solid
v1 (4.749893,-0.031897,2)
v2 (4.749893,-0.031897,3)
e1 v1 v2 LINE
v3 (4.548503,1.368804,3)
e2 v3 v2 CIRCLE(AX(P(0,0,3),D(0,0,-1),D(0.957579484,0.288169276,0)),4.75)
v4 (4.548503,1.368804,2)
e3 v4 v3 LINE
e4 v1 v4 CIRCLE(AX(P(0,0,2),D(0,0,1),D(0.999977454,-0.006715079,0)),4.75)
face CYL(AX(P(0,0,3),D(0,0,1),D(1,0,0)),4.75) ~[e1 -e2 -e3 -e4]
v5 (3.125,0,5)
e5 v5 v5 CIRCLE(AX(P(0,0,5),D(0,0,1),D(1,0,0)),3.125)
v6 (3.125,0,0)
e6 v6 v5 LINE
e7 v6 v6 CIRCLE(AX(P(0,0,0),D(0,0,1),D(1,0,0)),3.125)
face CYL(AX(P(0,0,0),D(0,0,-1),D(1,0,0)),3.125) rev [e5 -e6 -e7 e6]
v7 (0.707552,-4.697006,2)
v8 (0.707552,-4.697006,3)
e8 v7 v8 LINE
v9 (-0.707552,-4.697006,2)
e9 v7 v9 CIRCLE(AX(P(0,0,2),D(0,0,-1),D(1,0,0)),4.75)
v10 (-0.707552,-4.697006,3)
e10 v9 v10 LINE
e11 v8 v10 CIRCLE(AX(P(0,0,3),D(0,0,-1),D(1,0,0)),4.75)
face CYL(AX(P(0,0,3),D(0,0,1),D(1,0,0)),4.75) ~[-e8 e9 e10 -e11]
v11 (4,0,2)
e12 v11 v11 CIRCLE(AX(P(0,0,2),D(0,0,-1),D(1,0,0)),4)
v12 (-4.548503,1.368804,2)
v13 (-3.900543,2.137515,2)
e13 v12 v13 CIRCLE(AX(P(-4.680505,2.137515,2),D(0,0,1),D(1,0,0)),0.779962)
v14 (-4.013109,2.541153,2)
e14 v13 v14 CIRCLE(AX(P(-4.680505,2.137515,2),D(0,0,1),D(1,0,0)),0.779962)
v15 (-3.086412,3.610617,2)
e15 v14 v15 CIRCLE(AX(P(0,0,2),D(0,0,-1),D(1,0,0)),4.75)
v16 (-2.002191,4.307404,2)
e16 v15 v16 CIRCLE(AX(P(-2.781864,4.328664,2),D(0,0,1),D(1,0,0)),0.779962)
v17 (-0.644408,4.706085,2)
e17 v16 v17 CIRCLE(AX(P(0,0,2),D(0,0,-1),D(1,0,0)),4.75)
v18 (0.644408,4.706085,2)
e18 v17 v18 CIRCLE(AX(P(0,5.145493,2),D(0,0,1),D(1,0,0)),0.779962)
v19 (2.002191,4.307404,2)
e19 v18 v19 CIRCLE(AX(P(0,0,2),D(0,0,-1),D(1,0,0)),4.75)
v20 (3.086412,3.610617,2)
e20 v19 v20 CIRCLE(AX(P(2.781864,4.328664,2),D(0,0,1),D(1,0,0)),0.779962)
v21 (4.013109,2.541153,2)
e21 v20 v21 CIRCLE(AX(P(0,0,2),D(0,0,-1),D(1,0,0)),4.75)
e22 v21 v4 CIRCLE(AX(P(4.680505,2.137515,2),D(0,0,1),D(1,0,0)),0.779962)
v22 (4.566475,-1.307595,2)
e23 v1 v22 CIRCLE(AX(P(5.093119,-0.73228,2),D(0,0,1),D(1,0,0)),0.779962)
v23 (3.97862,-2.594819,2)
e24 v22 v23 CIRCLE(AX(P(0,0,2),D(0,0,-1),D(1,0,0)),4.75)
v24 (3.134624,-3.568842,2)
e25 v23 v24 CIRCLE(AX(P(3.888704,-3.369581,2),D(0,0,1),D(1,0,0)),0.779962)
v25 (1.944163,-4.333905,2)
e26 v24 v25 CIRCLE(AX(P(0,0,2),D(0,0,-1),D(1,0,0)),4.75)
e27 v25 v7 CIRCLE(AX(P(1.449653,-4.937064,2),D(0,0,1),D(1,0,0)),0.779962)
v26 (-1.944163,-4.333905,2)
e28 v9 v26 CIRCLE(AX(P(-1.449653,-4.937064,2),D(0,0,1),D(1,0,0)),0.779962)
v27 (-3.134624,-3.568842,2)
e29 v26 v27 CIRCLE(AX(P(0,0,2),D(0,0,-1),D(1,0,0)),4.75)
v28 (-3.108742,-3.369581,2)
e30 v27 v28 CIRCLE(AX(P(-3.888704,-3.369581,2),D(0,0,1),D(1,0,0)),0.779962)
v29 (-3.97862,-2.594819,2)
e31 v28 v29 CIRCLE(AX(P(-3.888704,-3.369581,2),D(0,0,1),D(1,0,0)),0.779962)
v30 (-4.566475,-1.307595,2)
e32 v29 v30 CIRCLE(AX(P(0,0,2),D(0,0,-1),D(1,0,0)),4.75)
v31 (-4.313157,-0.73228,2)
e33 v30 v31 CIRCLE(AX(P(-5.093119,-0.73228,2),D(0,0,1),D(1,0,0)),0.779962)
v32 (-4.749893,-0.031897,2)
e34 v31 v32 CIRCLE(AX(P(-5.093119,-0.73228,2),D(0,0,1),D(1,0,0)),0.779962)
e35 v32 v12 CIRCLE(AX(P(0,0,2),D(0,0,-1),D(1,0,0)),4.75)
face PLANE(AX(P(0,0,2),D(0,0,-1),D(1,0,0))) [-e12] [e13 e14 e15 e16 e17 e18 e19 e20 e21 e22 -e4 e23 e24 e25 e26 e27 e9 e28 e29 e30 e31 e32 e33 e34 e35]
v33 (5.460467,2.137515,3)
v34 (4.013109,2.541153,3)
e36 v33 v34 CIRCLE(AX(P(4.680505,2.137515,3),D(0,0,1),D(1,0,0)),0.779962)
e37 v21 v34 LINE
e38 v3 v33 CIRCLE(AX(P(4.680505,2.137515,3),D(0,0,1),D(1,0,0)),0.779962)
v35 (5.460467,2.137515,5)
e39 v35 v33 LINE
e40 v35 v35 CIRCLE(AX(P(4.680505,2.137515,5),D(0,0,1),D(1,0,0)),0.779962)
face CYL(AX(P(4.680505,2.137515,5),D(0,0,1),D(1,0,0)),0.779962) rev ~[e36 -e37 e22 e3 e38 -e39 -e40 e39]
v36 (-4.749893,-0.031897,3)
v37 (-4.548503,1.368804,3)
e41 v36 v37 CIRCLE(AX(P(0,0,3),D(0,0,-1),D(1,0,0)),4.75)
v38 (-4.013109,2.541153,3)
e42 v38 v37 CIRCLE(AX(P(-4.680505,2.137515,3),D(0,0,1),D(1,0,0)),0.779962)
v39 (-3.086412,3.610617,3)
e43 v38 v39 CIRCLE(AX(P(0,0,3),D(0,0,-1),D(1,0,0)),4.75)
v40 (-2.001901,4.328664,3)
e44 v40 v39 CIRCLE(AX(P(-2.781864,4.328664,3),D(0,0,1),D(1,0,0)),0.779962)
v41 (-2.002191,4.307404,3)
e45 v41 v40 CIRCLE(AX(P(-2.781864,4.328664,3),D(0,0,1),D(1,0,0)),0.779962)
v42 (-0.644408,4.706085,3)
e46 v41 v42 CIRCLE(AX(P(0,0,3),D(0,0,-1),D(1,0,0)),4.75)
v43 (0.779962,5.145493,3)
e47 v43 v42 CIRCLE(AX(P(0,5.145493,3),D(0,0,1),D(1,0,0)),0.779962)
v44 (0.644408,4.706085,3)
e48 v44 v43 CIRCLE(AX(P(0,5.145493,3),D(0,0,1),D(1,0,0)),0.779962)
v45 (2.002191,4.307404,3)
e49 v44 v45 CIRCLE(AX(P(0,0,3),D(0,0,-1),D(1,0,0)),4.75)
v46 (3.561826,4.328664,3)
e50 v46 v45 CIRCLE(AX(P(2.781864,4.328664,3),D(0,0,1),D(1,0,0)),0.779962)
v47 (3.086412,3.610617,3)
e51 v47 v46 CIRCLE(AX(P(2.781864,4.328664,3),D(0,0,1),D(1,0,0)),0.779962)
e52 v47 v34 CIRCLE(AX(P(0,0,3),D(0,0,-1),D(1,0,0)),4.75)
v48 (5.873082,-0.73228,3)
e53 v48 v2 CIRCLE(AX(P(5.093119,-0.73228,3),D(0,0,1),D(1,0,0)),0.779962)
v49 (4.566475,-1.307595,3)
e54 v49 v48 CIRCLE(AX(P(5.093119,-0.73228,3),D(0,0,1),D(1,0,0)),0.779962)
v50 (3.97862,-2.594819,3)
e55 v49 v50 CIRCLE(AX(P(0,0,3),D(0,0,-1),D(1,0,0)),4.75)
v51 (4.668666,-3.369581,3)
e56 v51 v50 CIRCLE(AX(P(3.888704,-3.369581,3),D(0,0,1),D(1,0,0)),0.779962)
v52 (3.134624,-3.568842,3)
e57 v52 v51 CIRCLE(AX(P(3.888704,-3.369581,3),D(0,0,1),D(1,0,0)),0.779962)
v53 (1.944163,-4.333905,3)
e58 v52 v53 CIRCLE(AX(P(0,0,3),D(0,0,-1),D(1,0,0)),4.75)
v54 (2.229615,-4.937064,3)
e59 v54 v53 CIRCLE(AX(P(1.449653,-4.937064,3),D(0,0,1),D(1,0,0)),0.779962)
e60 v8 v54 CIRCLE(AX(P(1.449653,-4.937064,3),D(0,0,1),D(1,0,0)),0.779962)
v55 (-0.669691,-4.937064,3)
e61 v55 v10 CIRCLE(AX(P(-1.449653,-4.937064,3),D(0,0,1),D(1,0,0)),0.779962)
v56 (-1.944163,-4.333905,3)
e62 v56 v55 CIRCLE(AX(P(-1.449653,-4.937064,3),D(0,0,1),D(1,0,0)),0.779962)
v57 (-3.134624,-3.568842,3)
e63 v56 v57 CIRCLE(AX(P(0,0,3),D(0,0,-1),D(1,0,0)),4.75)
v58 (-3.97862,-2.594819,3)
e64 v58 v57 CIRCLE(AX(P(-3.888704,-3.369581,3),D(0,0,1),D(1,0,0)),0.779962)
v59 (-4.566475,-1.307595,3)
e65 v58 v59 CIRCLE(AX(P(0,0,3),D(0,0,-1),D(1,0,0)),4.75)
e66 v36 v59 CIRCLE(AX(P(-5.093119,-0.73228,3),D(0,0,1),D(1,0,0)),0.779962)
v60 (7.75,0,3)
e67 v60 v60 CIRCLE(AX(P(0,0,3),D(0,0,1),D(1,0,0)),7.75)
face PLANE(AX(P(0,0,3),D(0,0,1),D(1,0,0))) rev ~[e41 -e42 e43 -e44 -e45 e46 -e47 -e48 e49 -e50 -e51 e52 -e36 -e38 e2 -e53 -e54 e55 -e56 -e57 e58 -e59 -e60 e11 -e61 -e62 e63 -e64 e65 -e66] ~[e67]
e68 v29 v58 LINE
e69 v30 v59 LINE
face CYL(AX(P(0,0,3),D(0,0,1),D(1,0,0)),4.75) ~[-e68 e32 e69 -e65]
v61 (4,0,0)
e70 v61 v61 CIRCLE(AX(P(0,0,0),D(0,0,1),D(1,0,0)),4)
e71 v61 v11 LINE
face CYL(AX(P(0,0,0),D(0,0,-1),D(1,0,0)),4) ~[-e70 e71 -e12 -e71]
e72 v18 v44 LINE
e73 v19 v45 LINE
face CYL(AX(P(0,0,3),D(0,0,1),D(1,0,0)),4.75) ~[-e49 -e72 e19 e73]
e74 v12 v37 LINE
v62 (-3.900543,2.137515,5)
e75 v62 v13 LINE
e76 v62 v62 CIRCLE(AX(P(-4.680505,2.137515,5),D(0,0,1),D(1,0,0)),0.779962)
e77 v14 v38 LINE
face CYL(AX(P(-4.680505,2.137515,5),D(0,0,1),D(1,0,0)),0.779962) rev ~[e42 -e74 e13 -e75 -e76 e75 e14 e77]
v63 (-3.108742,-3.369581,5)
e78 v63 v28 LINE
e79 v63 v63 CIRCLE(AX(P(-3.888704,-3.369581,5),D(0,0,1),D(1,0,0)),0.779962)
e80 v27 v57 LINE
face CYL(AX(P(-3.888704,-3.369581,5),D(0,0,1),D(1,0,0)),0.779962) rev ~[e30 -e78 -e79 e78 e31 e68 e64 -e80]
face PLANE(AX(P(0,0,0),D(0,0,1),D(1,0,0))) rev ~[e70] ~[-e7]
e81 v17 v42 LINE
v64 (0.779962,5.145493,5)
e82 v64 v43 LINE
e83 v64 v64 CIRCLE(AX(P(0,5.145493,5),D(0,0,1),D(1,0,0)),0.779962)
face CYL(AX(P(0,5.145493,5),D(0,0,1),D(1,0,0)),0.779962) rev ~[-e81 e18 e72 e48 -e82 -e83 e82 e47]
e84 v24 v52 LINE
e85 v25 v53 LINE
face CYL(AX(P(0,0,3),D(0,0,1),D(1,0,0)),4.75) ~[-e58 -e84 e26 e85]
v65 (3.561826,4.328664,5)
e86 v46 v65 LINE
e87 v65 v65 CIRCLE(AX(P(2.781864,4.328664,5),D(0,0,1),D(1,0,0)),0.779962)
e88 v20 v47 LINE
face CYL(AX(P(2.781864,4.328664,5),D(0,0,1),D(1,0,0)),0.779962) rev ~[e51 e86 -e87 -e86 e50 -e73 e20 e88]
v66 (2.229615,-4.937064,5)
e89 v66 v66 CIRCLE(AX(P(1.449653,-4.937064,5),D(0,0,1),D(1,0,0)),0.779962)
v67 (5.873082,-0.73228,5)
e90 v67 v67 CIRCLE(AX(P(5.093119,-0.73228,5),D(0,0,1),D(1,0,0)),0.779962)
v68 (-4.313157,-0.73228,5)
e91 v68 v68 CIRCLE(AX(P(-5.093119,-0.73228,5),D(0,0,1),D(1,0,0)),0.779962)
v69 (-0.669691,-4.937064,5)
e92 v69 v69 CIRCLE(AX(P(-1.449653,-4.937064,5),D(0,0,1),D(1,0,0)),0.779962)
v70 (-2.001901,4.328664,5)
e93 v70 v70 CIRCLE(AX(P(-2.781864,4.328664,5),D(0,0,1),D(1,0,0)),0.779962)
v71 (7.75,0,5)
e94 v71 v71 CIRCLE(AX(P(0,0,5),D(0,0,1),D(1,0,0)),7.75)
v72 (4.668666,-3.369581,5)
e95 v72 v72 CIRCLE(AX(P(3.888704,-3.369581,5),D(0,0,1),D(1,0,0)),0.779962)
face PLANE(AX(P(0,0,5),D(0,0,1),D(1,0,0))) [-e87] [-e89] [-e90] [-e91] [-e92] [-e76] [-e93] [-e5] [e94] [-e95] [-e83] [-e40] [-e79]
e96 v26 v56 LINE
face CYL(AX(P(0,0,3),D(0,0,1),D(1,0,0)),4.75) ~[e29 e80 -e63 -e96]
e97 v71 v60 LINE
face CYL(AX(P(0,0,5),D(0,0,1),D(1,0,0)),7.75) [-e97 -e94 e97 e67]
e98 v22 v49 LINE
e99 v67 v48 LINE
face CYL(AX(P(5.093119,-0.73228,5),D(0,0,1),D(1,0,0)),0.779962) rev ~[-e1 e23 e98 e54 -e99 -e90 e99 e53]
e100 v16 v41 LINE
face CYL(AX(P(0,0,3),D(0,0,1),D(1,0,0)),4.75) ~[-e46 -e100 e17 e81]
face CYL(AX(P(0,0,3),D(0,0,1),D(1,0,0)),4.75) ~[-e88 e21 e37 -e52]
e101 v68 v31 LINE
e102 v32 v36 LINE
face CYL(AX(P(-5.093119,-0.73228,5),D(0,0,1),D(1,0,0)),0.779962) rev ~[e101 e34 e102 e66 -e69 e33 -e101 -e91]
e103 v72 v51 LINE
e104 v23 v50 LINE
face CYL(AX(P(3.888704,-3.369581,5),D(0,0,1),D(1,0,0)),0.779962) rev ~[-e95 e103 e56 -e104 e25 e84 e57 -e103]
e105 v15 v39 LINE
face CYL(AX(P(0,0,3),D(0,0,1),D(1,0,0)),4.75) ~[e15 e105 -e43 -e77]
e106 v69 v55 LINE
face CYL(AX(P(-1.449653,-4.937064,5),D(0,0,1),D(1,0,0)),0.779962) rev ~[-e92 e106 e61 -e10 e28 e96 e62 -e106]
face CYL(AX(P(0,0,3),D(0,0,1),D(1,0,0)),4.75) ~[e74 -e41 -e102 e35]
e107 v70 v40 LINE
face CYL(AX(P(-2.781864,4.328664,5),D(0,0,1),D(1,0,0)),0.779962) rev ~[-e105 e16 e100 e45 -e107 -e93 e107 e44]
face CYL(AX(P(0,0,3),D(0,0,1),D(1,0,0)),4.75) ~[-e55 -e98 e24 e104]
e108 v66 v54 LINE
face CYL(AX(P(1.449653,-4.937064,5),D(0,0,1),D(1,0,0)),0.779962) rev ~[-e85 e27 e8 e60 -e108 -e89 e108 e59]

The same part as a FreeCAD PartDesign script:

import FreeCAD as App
import Part
import Sketcher
from FreeCAD import Vector

doc = App.newDocument("Part")
params = doc.addObject("Spreadsheet::Sheet", "Params")
for row, (alias, value) in enumerate([
    ("sketch1_diameter", "8 mm"),
    ("sketch1_diameter2", "6.25 mm"),
    ("pad1_length", "5 mm"),
    ("sketch2_diameter", "8 mm"),
    ("sketch2_diameter2", "15.5 mm"),
    ("pad2_length", "2 mm"),
    ("sketch3_diameter", "8 mm"),
    ("sketch3_diameter2", "9.5 mm"),
    ("pad3_length", "1 mm"),
    ("pocket1_length", "25.4 mm"),
], start=1):
    params.set(f"A{row}", alias)
    params.set(f"B{row}", "=" + value)
    params.setAlias(f"B{row}", alias)

body = doc.addObject("PartDesign::Body", "Body")

# Sketch on XY plane
sketch1 = body.newObject("Sketcher::SketchObject", "Sketch")
sketch1.AttachmentSupport = (doc.getObject("XY_Plane"), [""])
sketch1.MapMode = "FlatFace"
sketch1.addGeometry(Part.Circle(Vector(0, 0, 0), Vector(0, 0, 1), 4), False)
sketch1.addGeometry(Part.Circle(Vector(0, 0, 0), Vector(0, 0, 1), 3.1), False)
sketch1.addConstraint(Sketcher.Constraint("Coincident", 0, 3, -1, 1))
sketch1.addConstraint(Sketcher.Constraint("Coincident", 1, 3, -1, 1))
sketch1.addConstraint(Sketcher.Constraint("Diameter", 0, 8.0))
sketch1.addConstraint(Sketcher.Constraint("Diameter", 1, 6.25))
sketch1.setExpression("Constraints[2]", "Params.sketch1_diameter")
sketch1.setExpression("Constraints[3]", "Params.sketch1_diameter2")
pad1 = body.newObject("PartDesign::Pad", "Pad")
pad1.Profile = sketch1
pad1.setExpression("Length", "Params.pad1_length")

# Sketch on XY plane
sketch2 = body.newObject("Sketcher::SketchObject", "Sketch001")
sketch2.AttachmentSupport = (doc.getObject("XY_Plane"), [""])
sketch2.MapMode = "FlatFace"
sketch2.AttachmentOffset = App.Placement(Vector(0, 0, 5), App.Rotation())
sketch2.addGeometry(Part.Circle(Vector(0, 0, 0), Vector(0, 0, 1), 7.8), False)
sketch2.addGeometry(Part.Circle(Vector(0, 0, 0), Vector(0, 0, 1), 4), False)
sketch2.addConstraint(Sketcher.Constraint("Coincident", 0, 3, -1, 1))
sketch2.addConstraint(Sketcher.Constraint("Coincident", 1, 3, -1, 1))
sketch2.addConstraint(Sketcher.Constraint("Diameter", 1, 8.0))
sketch2.addConstraint(Sketcher.Constraint("Diameter", 0, 15.5))
sketch2.setExpression("Constraints[2]", "Params.sketch2_diameter")
sketch2.setExpression("Constraints[3]", "Params.sketch2_diameter2")
pad2 = body.newObject("PartDesign::Pad", "Pad001")
pad2.Profile = sketch2
pad2.setExpression("Length", "Params.pad2_length")
pad2.Reversed = True

# Sketch on XY plane
sketch3 = body.newObject("Sketcher::SketchObject", "Sketch002")
sketch3.AttachmentSupport = (doc.getObject("XY_Plane"), [""])
sketch3.MapMode = "FlatFace"
sketch3.AttachmentOffset = App.Placement(Vector(0, 0, 3), App.Rotation())
sketch3.addGeometry(Part.Circle(Vector(0, 0, 0), Vector(0, 0, 1), 4.8), False)
sketch3.addGeometry(Part.Circle(Vector(0, 0, 0), Vector(0, 0, 1), 4), False)
sketch3.addConstraint(Sketcher.Constraint("Coincident", 0, 3, -1, 1))
sketch3.addConstraint(Sketcher.Constraint("Coincident", 1, 3, -1, 1))
sketch3.addConstraint(Sketcher.Constraint("Diameter", 1, 8.0))
sketch3.addConstraint(Sketcher.Constraint("Diameter", 0, 9.5))
sketch3.setExpression("Constraints[2]", "Params.sketch3_diameter")
sketch3.setExpression("Constraints[3]", "Params.sketch3_diameter2")
pad3 = body.newObject("PartDesign::Pad", "Pad002")
pad3.Profile = sketch3
pad3.setExpression("Length", "Params.pad3_length")
pad3.Reversed = True

# Sketch on XY plane
sketch4 = body.newObject("Sketcher::SketchObject", "Sketch003")
sketch4.AttachmentSupport = (doc.getObject("XY_Plane"), [""])
sketch4.MapMode = "FlatFace"
sketch4.AttachmentOffset = App.Placement(Vector(0, 0, 5), App.Rotation())
sketch4.addGeometry(Part.Circle(Vector(0, 5.1, 0), Vector(0, 0, 1), 0.8), False)
sketch4.addGeometry(Part.Circle(Vector(-2.8, 4.3, 0), Vector(0, 0, 1), 0.8), False)
sketch4.addGeometry(Part.Circle(Vector(-4.7, 2.1, 0), Vector(0, 0, 1), 0.8), False)
sketch4.addGeometry(Part.Circle(Vector(-5.1, -0.7, 0), Vector(0, 0, 1), 0.8), False)
sketch4.addGeometry(Part.Circle(Vector(-3.9, -3.4, 0), Vector(0, 0, 1), 0.8), False)
sketch4.addGeometry(Part.Circle(Vector(-1.4, -4.9, 0), Vector(0, 0, 1), 0.8), False)
sketch4.addGeometry(Part.Circle(Vector(1.4, -4.9, 0), Vector(0, 0, 1), 0.8), False)
sketch4.addGeometry(Part.Circle(Vector(3.9, -3.4, 0), Vector(0, 0, 1), 0.8), False)
sketch4.addGeometry(Part.Circle(Vector(5.1, -0.7, 0), Vector(0, 0, 1), 0.8), False)
sketch4.addGeometry(Part.Circle(Vector(4.7, 2.1, 0), Vector(0, 0, 1), 0.8), False)
sketch4.addGeometry(Part.Circle(Vector(2.8, 4.3, 0), Vector(0, 0, 1), 0.8), False)
sketch4.addConstraint(Sketcher.Constraint("Equal", 0, 1))
sketch4.addConstraint(Sketcher.Constraint("Equal", 1, 2))
sketch4.addConstraint(Sketcher.Constraint("Equal", 2, 3))
sketch4.addConstraint(Sketcher.Constraint("Equal", 3, 4))
sketch4.addConstraint(Sketcher.Constraint("Equal", 4, 5))
sketch4.addConstraint(Sketcher.Constraint("Equal", 5, 6))
sketch4.addConstraint(Sketcher.Constraint("Equal", 6, 7))
sketch4.addConstraint(Sketcher.Constraint("Equal", 7, 8))
sketch4.addConstraint(Sketcher.Constraint("Equal", 8, 9))
sketch4.addConstraint(Sketcher.Constraint("Equal", 9, 10))
sketch4.addConstraint(Sketcher.Constraint("Symmetric", 5, 3, 6, 3, -2))
sketch4.addConstraint(Sketcher.Constraint("Symmetric", 4, 3, 7, 3, -2))
sketch4.addConstraint(Sketcher.Constraint("Symmetric", 3, 3, 8, 3, -2))
sketch4.addConstraint(Sketcher.Constraint("Symmetric", 2, 3, 9, 3, -2))
sketch4.addConstraint(Sketcher.Constraint("Symmetric", 1, 3, 10, 3, -2))
sketch4.addConstraint(Sketcher.Constraint("PointOnObject", 0, 3, -2))
sketch4.addConstraint(Sketcher.Constraint("Diameter", 0, 1.559925))
sketch4.addConstraint(Sketcher.Constraint("DistanceY", 4, 3, 3, 3, 2.637301))
sketch4.addConstraint(Sketcher.Constraint("DistanceX", 2, 3, 4, 3, 0.791801))
sketch4.addConstraint(Sketcher.Constraint("DistanceX", 3, 3, -1, 1, 5.093119))
sketch4.addConstraint(Sketcher.Constraint("DistanceY", 3, 3, -1, 1, 0.73228))
sketch4.addConstraint(Sketcher.Constraint("DistanceY", 1, 3, 0, 3, 0.816829))
sketch4.addConstraint(Sketcher.Constraint("DistanceX", 2, 3, 1, 3, 1.898642))
sketch4.addConstraint(Sketcher.Constraint("DistanceY", 2, 3, 1, 3, 2.191149))
sketch4.addConstraint(Sketcher.Constraint("DistanceX", 4, 3, 5, 3, 2.439051))
sketch4.addConstraint(Sketcher.Constraint("DistanceY", 5, 3, 2, 3, 7.074579))
sketch4.addConstraint(Sketcher.Constraint("DistanceX", 4, 3, 7, 3, 7.777408))
sketch4.addConstraint(Sketcher.Constraint("DistanceY", -1, 1, 0, 3, 5.145493))
pocket1 = body.newObject("PartDesign::Pocket", "Pocket")
pocket1.Profile = sketch4
pocket1.setExpression("Length", "Params.pocket1_length")
pocket1.Midplane = True

doc.recompute()
